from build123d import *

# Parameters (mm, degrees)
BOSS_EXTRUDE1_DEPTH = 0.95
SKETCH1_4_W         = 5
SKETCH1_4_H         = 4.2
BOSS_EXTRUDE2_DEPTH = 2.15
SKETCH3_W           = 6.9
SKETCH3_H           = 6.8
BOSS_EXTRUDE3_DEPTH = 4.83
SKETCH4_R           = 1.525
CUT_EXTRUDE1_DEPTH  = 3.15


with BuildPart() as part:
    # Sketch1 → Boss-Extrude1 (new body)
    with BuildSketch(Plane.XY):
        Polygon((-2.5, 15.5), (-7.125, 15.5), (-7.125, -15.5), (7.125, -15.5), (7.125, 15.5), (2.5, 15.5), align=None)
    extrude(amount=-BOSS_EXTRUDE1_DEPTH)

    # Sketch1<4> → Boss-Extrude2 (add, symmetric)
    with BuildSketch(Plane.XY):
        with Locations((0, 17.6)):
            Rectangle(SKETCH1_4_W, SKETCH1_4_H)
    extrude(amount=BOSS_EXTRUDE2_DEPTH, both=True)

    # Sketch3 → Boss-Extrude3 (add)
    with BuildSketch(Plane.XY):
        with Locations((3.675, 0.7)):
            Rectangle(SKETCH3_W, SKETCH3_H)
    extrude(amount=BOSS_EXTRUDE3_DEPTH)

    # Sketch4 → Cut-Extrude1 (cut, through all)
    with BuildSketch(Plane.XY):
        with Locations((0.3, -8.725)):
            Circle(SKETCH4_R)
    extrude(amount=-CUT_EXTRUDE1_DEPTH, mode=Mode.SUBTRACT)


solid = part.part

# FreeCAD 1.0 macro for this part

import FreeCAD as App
import Part
import Sketcher
from FreeCAD import Vector
Q = App.Units.Quantity

doc = App.newDocument("Part")
body = doc.addObject("PartDesign::Body", "Body")

# Sketch on XY plane
sketch1 = body.newObject("Sketcher::SketchObject", "Sketch")
sketch1.AttachmentSupport = (doc.getObject("XY_Plane"), [""])
sketch1.MapMode = "FlatFace"
sketch1.addGeometry(Part.LineSegment(Vector(-7, 16, 0), Vector(-7, -16, 0)), False)
sketch1.addGeometry(Part.LineSegment(Vector(-7, -16, 0), Vector(7, -16, 0)), False)
sketch1.addGeometry(Part.LineSegment(Vector(7, -16, 0), Vector(7, 16, 0)), False)
sketch1.addGeometry(Part.LineSegment(Vector(7, 16, 0), Vector(-7, 16, 0)), False)
sketch1.addConstraint(Sketcher.Constraint("Coincident", 0, 2, 1, 1))
sketch1.addConstraint(Sketcher.Constraint("Coincident", 1, 2, 2, 1))
sketch1.addConstraint(Sketcher.Constraint("Coincident", 2, 2, 3, 1))
sketch1.addConstraint(Sketcher.Constraint("Coincident", 3, 2, 0, 1))
sketch1.addConstraint(Sketcher.Constraint("Vertical", 0))
sketch1.addConstraint(Sketcher.Constraint("Horizontal", 1))
sketch1.addConstraint(Sketcher.Constraint("Vertical", 2))
sketch1.addConstraint(Sketcher.Constraint("Horizontal", 3))
sketch1.addConstraint(Sketcher.Constraint("Symmetric", 0, 2, 2, 2, -1, 1))
sketch1.addConstraint(Sketcher.Constraint("DistanceY", 0, 2, 0, 1, Q("31 mm")))
sketch1.addConstraint(Sketcher.Constraint("DistanceX", 1, 1, 1, 2, Q("14.25 mm")))
pad1 = body.newObject("PartDesign::Pad", "Pad")
pad1.Profile = sketch1
pad1.Length = 0.95
pad1.Reversed = True

# Sketch on XY plane
sketch2 = body.newObject("Sketcher::SketchObject", "Sketch001")
sketch2.AttachmentSupport = (doc.getObject("XY_Plane"), [""])
sketch2.MapMode = "FlatFace"
sketch2.addGeometry(Part.LineSegment(Vector(-2.5, 19.7, 0), Vector(-2.5, 15.5, 0)), False)
sketch2.addGeometry(Part.LineSegment(Vector(-2.5, 15.5, 0), Vector(2.5, 15.5, 0)), False)
sketch2.addGeometry(Part.LineSegment(Vector(2.5, 15.5, 0), Vector(2.5, 19.7, 0)), False)
sketch2.addGeometry(Part.LineSegment(Vector(2.5, 19.7, 0), Vector(-2.5, 19.7, 0)), False)
sketch2.addConstraint(Sketcher.Constraint("Coincident", 0, 2, 1, 1))
sketch2.addConstraint(Sketcher.Constraint("Coincident", 1, 2, 2, 1))
sketch2.addConstraint(Sketcher.Constraint("Coincident", 2, 2, 3, 1))
sketch2.addConstraint(Sketcher.Constraint("Coincident", 3, 2, 0, 1))
sketch2.addConstraint(Sketcher.Constraint("Vertical", 0))
sketch2.addConstraint(Sketcher.Constraint("Horizontal", 1))
sketch2.addConstraint(Sketcher.Constraint("Vertical", 2))
sketch2.addConstraint(Sketcher.Constraint("Horizontal", 3))
sketch2.addConstraint(Sketcher.Constraint("DistanceX", 1, 1, 1, 2, Q("5 mm")))
sketch2.addConstraint(Sketcher.Constraint("DistanceY", 0, 2, 0, 1, Q("4.2 mm")))
sketch2.addConstraint(Sketcher.Constraint("DistanceX", 0, 2, -1, 1, Q("2.5 mm")))
sketch2.addConstraint(Sketcher.Constraint("DistanceY", -1, 1, 0, 2, Q("15.5 mm")))
pad2 = body.newObject("PartDesign::Pad", "Pad001")
pad2.Profile = sketch2
pad2.Length = 4.3
pad2.Midplane = True

# Sketch on XY plane
sketch3 = body.newObject("Sketcher::SketchObject", "Sketch002")
sketch3.AttachmentSupport = (doc.getObject("XY_Plane"), [""])
sketch3.MapMode = "FlatFace"
sketch3.addGeometry(Part.LineSegment(Vector(0, 4, 0), Vector(0, -3, 0)), False)
sketch3.addGeometry(Part.LineSegment(Vector(0, -3, 0), Vector(7, -3, 0)), False)
sketch3.addGeometry(Part.LineSegment(Vector(7, -3, 0), Vector(7, 4, 0)), False)
sketch3.addGeometry(Part.LineSegment(Vector(7, 4, 0), Vector(0, 4, 0)), False)
sketch3.addConstraint(Sketcher.Constraint("Coincident", 0, 2, 1, 1))
sketch3.addConstraint(Sketcher.Constraint("Coincident", 1, 2, 2, 1))
sketch3.addConstraint(Sketcher.Constraint("Coincident", 2, 2, 3, 1))
sketch3.addConstraint(Sketcher.Constraint("Coincident", 3, 2, 0, 1))
sketch3.addConstraint(Sketcher.Constraint("Vertical", 0))
sketch3.addConstraint(Sketcher.Constraint("Horizontal", 1))
sketch3.addConstraint(Sketcher.Constraint("Vertical", 2))
sketch3.addConstraint(Sketcher.Constraint("Horizontal", 3))
sketch3.addConstraint(Sketcher.Constraint("DistanceX", 1, 1, 1, 2, Q("6.9 mm")))
sketch3.addConstraint(Sketcher.Constraint("DistanceY", 0, 2, 0, 1, Q("6.8 mm")))
sketch3.addConstraint(Sketcher.Constraint("DistanceY", 0, 2, -1, 1, Q("2.7 mm")))
sketch3.addConstraint(Sketcher.Constraint("DistanceX", -1, 1, 0, 2, Q("0.225 mm")))
pad3 = body.newObject("PartDesign::Pad", "Pad002")
pad3.Profile = sketch3
pad3.Length = 4.83

# Sketch on XY plane
sketch4 = body.newObject("Sketcher::SketchObject", "Sketch003")
sketch4.AttachmentSupport = (doc.getObject("XY_Plane"), [""])
sketch4.MapMode = "FlatFace"
sketch4.addGeometry(Part.Circle(Vector(0.3, -8.7, 0), Vector(0, 0, 1), 1.5), False)
sketch4.addConstraint(Sketcher.Constraint("Diameter", 0, Q("3.05 mm")))
sketch4.addConstraint(Sketcher.Constraint("DistanceX", -1, 1, 0, 3, Q("0.3 mm")))
sketch4.addConstraint(Sketcher.Constraint("DistanceY", 0, 3, -1, 1, Q("8.725 mm")))
pocket1 = body.newObject("PartDesign::Pocket", "Pocket")
pocket1.Profile = sketch4
pocket1.Type = "ThroughAll"

doc.recompute()
